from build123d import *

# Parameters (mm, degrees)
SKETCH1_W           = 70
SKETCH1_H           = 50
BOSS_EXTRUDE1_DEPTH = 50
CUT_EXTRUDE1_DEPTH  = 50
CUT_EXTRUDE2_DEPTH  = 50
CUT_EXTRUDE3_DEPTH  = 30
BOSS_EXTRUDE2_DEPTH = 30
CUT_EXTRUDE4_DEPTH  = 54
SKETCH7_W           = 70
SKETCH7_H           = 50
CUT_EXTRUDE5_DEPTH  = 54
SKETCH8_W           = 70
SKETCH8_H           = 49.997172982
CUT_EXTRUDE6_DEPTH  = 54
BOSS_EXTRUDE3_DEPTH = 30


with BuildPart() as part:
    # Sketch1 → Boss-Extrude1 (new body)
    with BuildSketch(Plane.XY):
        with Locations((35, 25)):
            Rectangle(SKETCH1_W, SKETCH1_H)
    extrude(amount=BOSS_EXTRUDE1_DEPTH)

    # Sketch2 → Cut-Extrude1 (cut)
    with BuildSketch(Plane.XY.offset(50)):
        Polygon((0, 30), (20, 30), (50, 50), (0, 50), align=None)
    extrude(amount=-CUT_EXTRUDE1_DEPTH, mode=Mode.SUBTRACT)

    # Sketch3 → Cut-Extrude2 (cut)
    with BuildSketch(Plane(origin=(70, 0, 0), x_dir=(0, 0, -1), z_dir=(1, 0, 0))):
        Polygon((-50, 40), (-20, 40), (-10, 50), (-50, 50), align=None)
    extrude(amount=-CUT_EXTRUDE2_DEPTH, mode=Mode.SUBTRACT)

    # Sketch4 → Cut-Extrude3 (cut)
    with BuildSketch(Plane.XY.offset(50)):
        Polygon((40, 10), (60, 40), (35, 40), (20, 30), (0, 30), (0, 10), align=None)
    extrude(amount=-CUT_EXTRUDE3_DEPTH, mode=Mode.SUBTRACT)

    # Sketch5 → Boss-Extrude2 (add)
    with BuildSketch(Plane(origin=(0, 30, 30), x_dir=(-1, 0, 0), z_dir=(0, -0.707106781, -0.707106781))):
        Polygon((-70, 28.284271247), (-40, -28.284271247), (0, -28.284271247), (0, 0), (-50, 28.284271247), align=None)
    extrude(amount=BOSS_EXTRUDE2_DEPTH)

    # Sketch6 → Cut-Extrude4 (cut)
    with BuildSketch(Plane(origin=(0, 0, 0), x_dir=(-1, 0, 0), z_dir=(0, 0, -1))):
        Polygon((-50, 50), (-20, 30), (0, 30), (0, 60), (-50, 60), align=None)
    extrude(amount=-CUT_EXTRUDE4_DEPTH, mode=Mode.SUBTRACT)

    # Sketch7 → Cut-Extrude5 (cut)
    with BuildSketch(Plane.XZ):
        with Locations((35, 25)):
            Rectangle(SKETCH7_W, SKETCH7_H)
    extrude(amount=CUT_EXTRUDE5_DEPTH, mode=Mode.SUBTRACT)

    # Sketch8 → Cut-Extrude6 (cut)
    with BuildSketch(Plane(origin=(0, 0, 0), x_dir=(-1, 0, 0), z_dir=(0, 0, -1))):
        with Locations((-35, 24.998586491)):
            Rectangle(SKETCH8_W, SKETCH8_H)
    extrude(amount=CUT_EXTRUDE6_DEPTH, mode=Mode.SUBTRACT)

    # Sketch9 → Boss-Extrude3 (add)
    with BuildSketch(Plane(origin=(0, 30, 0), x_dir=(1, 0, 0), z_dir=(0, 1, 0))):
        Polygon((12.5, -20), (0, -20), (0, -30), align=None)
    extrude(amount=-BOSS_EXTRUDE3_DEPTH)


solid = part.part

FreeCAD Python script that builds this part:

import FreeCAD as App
import Part
import Sketcher
from FreeCAD import Vector
Q = App.Units.Quantity


def add_polygon(sketch, points):
    """Adds a closed chain of lines whose ends are joined by coincident constraints."""
    first, n = sketch.GeometryCount, len(points)
    for a, b in zip(points, points[1:] + points[:1]):
        sketch.addGeometry(Part.LineSegment(App.Vector(*a, 0), App.Vector(*b, 0)), False)
    for i in range(n):
        sketch.addConstraint(Sketcher.Constraint("Coincident", first + i, 2, first + (i + 1) % n, 1))

doc = App.newDocument("Part")
body = doc.addObject("PartDesign::Body", "Body")

# Sketch on XY plane
sketch1 = doc.addObject("Sketcher::SketchObject", "Sketch")
body.addObject(sketch1)
sketch1.AttachmentSupport = (doc.XY_Plane, [""])
sketch1.MapMode = "FlatFace"
add_polygon(sketch1, [(0, 50), (0, 0), (70, 0), (70, 50)])  # lines 0-3
sketch1.addConstraint(Sketcher.Constraint("Vertical", 0))
sketch1.addConstraint(Sketcher.Constraint("Horizontal", 1))
sketch1.addConstraint(Sketcher.Constraint("Vertical", 2))
sketch1.addConstraint(Sketcher.Constraint("Horizontal", 3))
sketch1.addConstraint(Sketcher.Constraint("Coincident", 0, 2, -1, 1))
sketch1.addConstraint(Sketcher.Constraint("DistanceX", 1, 1, 1, 2, Q("70 mm")))
sketch1.addConstraint(Sketcher.Constraint("DistanceY", 0, 2, 0, 1, Q("50 mm")))
pad1 = doc.addObject("PartDesign::Pad", "Pad")
body.addObject(pad1)
pad1.Profile = sketch1
pad1.Length = 50

# Sketch on XY plane
sketch2 = doc.addObject("Sketcher::SketchObject", "Sketch001")
body.addObject(sketch2)
sketch2.AttachmentSupport = (doc.XY_Plane, [""])
sketch2.MapMode = "FlatFace"
sketch2.AttachmentOffset = App.Placement(Vector(0, 0, 50), App.Rotation())
add_polygon(sketch2, [(0, 30), (20, 30), (50, 50), (0, 50)])  # lines 0-3
sketch2.addConstraint(Sketcher.Constraint("Horizontal", 0))
sketch2.addConstraint(Sketcher.Constraint("Horizontal", 2))
sketch2.addConstraint(Sketcher.Constraint("Vertical", 3))
sketch2.addConstraint(Sketcher.Constraint("PointOnObject", 2, 2, -2))
sketch2.addConstraint(Sketcher.Constraint("Equal", 0, 3))
sketch2.addConstraint(Sketcher.Constraint("DistanceX", 0, 1, 0, 2, Q("20 mm")))
sketch2.addConstraint(Sketcher.Constraint("DistanceX", 2, 2, 2, 1, Q("50 mm")))
sketch2.addConstraint(Sketcher.Constraint("DistanceY", -1, 1, 0, 2, Q("30 mm")))
pocket1 = doc.addObject("PartDesign::Pocket", "Pocket")
body.addObject(pocket1)
pocket1.Profile = sketch2
pocket1.Length = 50

# Sketch on YZ plane
sketch3 = doc.addObject("Sketcher::SketchObject", "Sketch002")
body.addObject(sketch3)
sketch3.AttachmentSupport = (doc.YZ_Plane, [""])
sketch3.MapMode = "FlatFace"
sketch3.AttachmentOffset = App.Placement(Vector(0, 0, 70), App.Rotation())
add_polygon(sketch3, [(40, 50), (40, 20), (50, 10), (50, 50)])  # lines 0-3
sketch3.addConstraint(Sketcher.Constraint("Vertical", 0))
sketch3.addConstraint(Sketcher.Constraint("Vertical", 2))
sketch3.addConstraint(Sketcher.Constraint("Horizontal", 3))
sketch3.addConstraint(Sketcher.Constraint("DistanceX", 3, 2, 3, 1, Q("10 mm")))
sketch3.addConstraint(Sketcher.Constraint("DistanceY", 0, 2, 0, 1, Q("30 mm")))
sketch3.addConstraint(Sketcher.Constraint("DistanceY", 2, 1, 2, 2, Q("40 mm")))
sketch3.addConstraint(Sketcher.Constraint("DistanceX", -1, 1, 0, 2, Q("40 mm")))
sketch3.addConstraint(Sketcher.Constraint("DistanceY", -1, 1, 0, 2, Q("20 mm")))
pocket2 = doc.addObject("PartDesign::Pocket", "Pocket001")
body.addObject(pocket2)
pocket2.Profile = sketch3
pocket2.Length = 50

# Sketch on XY plane
sketch4 = doc.addObject("Sketcher::SketchObject", "Sketch003")
body.addObject(sketch4)
sketch4.AttachmentSupport = (doc.XY_Plane, [""])
sketch4.MapMode = "FlatFace"
sketch4.AttachmentOffset = App.Placement(Vector(0, 0, 50), App.Rotation())
add_polygon(sketch4, [(40, 10), (60, 40), (35, 40), (20, 30), (0, 30), (0, 10)])  # lines 0-5
sketch4.addConstraint(Sketcher.Constraint("Horizontal", 1))
sketch4.addConstraint(Sketcher.Constraint("Horizontal", 3))
sketch4.addConstraint(Sketcher.Constraint("Vertical", 4))
sketch4.addConstraint(Sketcher.Constraint("Horizontal", 5))
sketch4.addConstraint(Sketcher.Constraint("PointOnObject", 3, 2, -2))
sketch4.addConstraint(Sketcher.Constraint("Equal", 3, 4))
sketch4.addConstraint(Sketcher.Constraint("DistanceX", 1, 2, 1, 1, Q("25 mm")))
sketch4.addConstraint(Sketcher.Constraint("DistanceX", 3, 2, 3, 1, Q("20 mm")))
sketch4.addConstraint(Sketcher.Constraint("DistanceX", 5, 1, 5, 2, Q("40 mm")))
sketch4.addConstraint(Sketcher.Constraint("DistanceX", -1, 1, 0, 2, Q("60 mm")))
sketch4.addConstraint(Sketcher.Constraint("DistanceY", -1, 1, 0, 2, Q("40 mm")))
sketch4.addConstraint(Sketcher.Constraint("DistanceY", -1, 1, 2, 2, Q("30 mm")))
pocket3 = doc.addObject("PartDesign::Pocket", "Pocket002")
body.addObject(pocket3)
pocket3.Profile = sketch4
pocket3.Length = 30

# Sketch on an angled plane
sketch5 = doc.addObject("Sketcher::SketchObject", "Sketch004")
body.addObject(sketch5)
sketch5.Placement = App.Placement(Vector(0, 30, 30), App.Rotation(Vector(-1, 0, 0), Vector(0, 0.707106781, -0.707106781), Vector(0, -0.707106781, -0.707106781), "ZXY"))
add_polygon(sketch5, [(-70, 28), (-40, -28), (0, -28), (0, 0), (-50, 28)])  # lines 0-4
sketch5.addConstraint(Sketcher.Constraint("Horizontal", 1))
sketch5.addConstraint(Sketcher.Constraint("Vertical", 2))
sketch5.addConstraint(Sketcher.Constraint("Horizontal", 4))
sketch5.addConstraint(Sketcher.Constraint("Coincident", 2, 2, -1, 1))
sketch5.addConstraint(Sketcher.Constraint("DistanceX", 1, 1, 1, 2, Q("40 mm")))
sketch5.addConstraint(Sketcher.Constraint("DistanceX", 4, 2, 4, 1, Q("20 mm")))
sketch5.addConstraint(Sketcher.Constraint("DistanceX", 3, 2, -1, 1, Q("50 mm")))
sketch5.addConstraint(Sketcher.Constraint("DistanceY", 2, 1, 2, 2, Q("28.284271 mm")))
sketch5.addConstraint(Sketcher.Constraint("DistanceY", -1, 1, 3, 2, Q("28.284271 mm")))
pad2 = doc.addObject("PartDesign::Pad", "Pad001")
body.addObject(pad2)
pad2.Profile = sketch5
pad2.Length = 30

# Sketch on XY plane
sketch6 = doc.addObject("Sketcher::SketchObject", "Sketch005")
body.addObject(sketch6)
sketch6.AttachmentSupport = (doc.XY_Plane, [""])
sketch6.MapMode = "FlatFace"
add_polygon(sketch6, [(50, 50), (20, 30), (0, 30), (0, 60), (50, 60)])  # lines 0-4
sketch6.addConstraint(Sketcher.Constraint("Horizontal", 1))
sketch6.addConstraint(Sketcher.Constraint("Vertical", 2))
sketch6.addConstraint(Sketcher.Constraint("Horizontal", 3))
sketch6.addConstraint(Sketcher.Constraint("Vertical", 4))
sketch6.addConstraint(Sketcher.Constraint("PointOnObject", 1, 2, -2))
sketch6.addConstraint(Sketcher.Constraint("DistanceX", 1, 2, 1, 1, Q("20 mm")))
sketch6.addConstraint(Sketcher.Constraint("DistanceX", 3, 1, 3, 2, Q("50 mm")))
sketch6.addConstraint(Sketcher.Constraint("DistanceY", 2, 1, 2, 2, Q("30 mm")))
sketch6.addConstraint(Sketcher.Constraint("DistanceY", 4, 2, 4, 1, Q("10 mm")))
sketch6.addConstraint(Sketcher.Constraint("DistanceY", -1, 1, 0, 2, Q("30 mm")))
pocket4 = doc.addObject("PartDesign::Pocket", "Pocket003")
body.addObject(pocket4)
pocket4.Profile = sketch6
pocket4.Length = 54
pocket4.Reversed = True

# Sketch on XZ plane
sketch7 = doc.addObject("Sketcher::SketchObject", "Sketch006")
body.addObject(sketch7)
sketch7.AttachmentSupport = (doc.XZ_Plane, [""])
sketch7.MapMode = "FlatFace"
add_polygon(sketch7, [(0, 50), (0, 0), (70, 0), (70, 50)])  # lines 0-3
sketch7.addConstraint(Sketcher.Constraint("Vertical", 0))
sketch7.addConstraint(Sketcher.Constraint("Horizontal", 1))
sketch7.addConstraint(Sketcher.Constraint("Vertical", 2))
sketch7.addConstraint(Sketcher.Constraint("Horizontal", 3))
sketch7.addConstraint(Sketcher.Constraint("Coincident", 0, 2, -1, 1))
sketch7.addConstraint(Sketcher.Constraint("DistanceX", 1, 1, 1, 2, Q("70 mm")))
sketch7.addConstraint(Sketcher.Constraint("DistanceY", 0, 2, 0, 1, Q("50 mm")))
pocket5 = doc.addObject("PartDesign::Pocket", "Pocket004")
body.addObject(pocket5)
pocket5.Profile = sketch7
pocket5.Length = 54
pocket5.Reversed = True

# Sketch on XY plane
sketch8 = doc.addObject("Sketcher::SketchObject", "Sketch007")
body.addObject(sketch8)
sketch8.AttachmentSupport = (doc.XY_Plane, [""])
sketch8.MapMode = "FlatFace"
add_polygon(sketch8, [(70, 50), (70, 0), (0, 0), (0, 50)])  # lines 0-3
sketch8.addConstraint(Sketcher.Constraint("Vertical", 0))
sketch8.addConstraint(Sketcher.Constraint("Horizontal", 1))
sketch8.addConstraint(Sketcher.Constraint("Vertical", 2))
sketch8.addConstraint(Sketcher.Constraint("Horizontal", 3))
sketch8.addConstraint(Sketcher.Constraint("Coincident", 1, 2, -1, 1))
sketch8.addConstraint(Sketcher.Constraint("DistanceX", 1, 2, 1, 1, Q("70 mm")))
sketch8.addConstraint(Sketcher.Constraint("DistanceY", 0, 2, 0, 1, Q("49.997173 mm")))
pocket6 = doc.addObject("PartDesign::Pocket", "Pocket005")
body.addObject(pocket6)
pocket6.Profile = sketch8
pocket6.Length = 54

# Sketch on XZ plane
sketch9 = doc.addObject("Sketcher::SketchObject", "Sketch008")
body.addObject(sketch9)
sketch9.AttachmentSupport = (doc.XZ_Plane, [""])
sketch9.MapMode = "FlatFace"
sketch9.AttachmentOffset = App.Placement(Vector(0, 0, -30), App.Rotation())
add_polygon(sketch9, [(12, 20), (0, 20), (0, 30)])  # lines 0-2
sketch9.addConstraint(Sketcher.Constraint("Horizontal", 0))
sketch9.addConstraint(Sketcher.Constraint("Vertical", 1))
sketch9.addConstraint(Sketcher.Constraint("PointOnObject", 0, 2, -2))
sketch9.addConstraint(Sketcher.Constraint("DistanceY", 1, 1, 1, 2, Q("10 mm")))
sketch9.addConstraint(Sketcher.Constraint("DistanceX", 0, 2, 0, 1, Q("12.5 mm")))
sketch9.addConstraint(Sketcher.Constraint("DistanceY", -1, 1, 0, 2, Q("20 mm")))
pad3 = doc.addObject("PartDesign::Pad", "Pad002")
body.addObject(pad3)
pad3.Profile = sketch9
pad3.Length = 30

doc.recompute()
